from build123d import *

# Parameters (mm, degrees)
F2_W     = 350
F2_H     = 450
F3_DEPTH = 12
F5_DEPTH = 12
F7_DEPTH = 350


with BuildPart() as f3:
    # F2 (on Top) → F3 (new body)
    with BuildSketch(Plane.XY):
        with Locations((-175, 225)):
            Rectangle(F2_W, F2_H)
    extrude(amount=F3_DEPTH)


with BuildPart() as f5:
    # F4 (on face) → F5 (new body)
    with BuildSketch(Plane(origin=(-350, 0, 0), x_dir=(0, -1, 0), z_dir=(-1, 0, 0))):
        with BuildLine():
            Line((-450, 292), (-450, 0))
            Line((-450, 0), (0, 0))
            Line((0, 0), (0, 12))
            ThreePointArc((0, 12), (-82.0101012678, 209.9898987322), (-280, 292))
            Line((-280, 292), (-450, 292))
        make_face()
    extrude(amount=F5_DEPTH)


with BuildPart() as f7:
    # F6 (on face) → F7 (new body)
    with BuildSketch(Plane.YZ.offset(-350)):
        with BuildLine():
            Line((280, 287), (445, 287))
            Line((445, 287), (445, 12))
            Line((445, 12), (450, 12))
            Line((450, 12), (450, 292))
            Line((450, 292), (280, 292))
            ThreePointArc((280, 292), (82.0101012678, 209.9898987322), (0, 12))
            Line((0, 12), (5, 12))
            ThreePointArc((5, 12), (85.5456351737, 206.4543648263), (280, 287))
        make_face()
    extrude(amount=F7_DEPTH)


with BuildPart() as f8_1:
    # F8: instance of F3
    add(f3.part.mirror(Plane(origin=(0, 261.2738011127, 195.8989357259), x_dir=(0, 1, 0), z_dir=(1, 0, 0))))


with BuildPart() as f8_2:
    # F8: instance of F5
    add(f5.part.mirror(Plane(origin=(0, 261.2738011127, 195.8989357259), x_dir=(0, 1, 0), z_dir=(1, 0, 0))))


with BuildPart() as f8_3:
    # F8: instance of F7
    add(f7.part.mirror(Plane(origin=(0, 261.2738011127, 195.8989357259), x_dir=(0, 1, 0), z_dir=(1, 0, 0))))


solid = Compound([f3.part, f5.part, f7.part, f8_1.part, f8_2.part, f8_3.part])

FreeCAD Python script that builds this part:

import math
import FreeCAD as App
import Part
import Sketcher


def add_polygon(sketch, points):
    """Adds a closed chain of lines whose ends are joined by coincident constraints."""
    first, n = sketch.GeometryCount, len(points)
    for a, b in zip(points, points[1:] + points[:1]):
        sketch.addGeometry(Part.LineSegment(App.Vector(*a, 0), App.Vector(*b, 0)), False)
    for i in range(n):
        sketch.addConstraint(Sketcher.Constraint("Coincident", first + i, 2, first + (i + 1) % n, 1))

doc = App.newDocument("Part")
body = doc.addObject("PartDesign::Body", "Body")

sketch1 = body.newObject("Sketcher::SketchObject", "Sketch")
sketch1.AttachmentSupport = (doc.getObject("XY_Plane"), [""])
sketch1.MapMode = "FlatFace"
add_polygon(sketch1, [(-350, 450), (-350, 0), (0, 0), (0, 450)])
sketch1.addConstraint(Sketcher.Constraint("Vertical", 0))
sketch1.addConstraint(Sketcher.Constraint("Horizontal", 1))
sketch1.addConstraint(Sketcher.Constraint("Vertical", 2))
sketch1.addConstraint(Sketcher.Constraint("Horizontal", 3))
sketch1.addConstraint(Sketcher.Constraint("Coincident", 1, 2, -1, 1))
sketch1.addConstraint(Sketcher.Constraint("DistanceX", 1, 1, 1, 2, 350.0))
sketch1.addConstraint(Sketcher.Constraint("DistanceY", 0, 2, 0, 1, 450.0))
pad1 = body.newObject("PartDesign::Pad", "Pad")
pad1.Profile = sketch1
pad1.Length = 12
body2 = doc.addObject("PartDesign::Body", "Body001")

sketch2 = body2.newObject("Sketcher::SketchObject", "Sketch001")
sketch2.AttachmentSupport = (doc.getObject("YZ_Plane001"), [""])
sketch2.MapMode = "FlatFace"
sketch2.AttachmentOffset = App.Placement(App.Vector(0, 0, -350), App.Rotation())
sketch2.addGeometry(Part.LineSegment(App.Vector(450, 292, 0), App.Vector(450, 0, 0)), False)
sketch2.addGeometry(Part.LineSegment(App.Vector(450, 0, 0), App.Vector(0, 0, 0)), False)
sketch2.addGeometry(Part.LineSegment(App.Vector(0, 0, 0), App.Vector(0, 12, 0)), False)
sketch2.addGeometry(Part.ArcOfCircle(Part.Circle(App.Vector(280, 12, 0), App.Vector(0, 0, 1), 280), math.radians(90), math.radians(180)), False)
sketch2.addGeometry(Part.LineSegment(App.Vector(280, 292, 0), App.Vector(450, 292, 0)), False)
sketch2.addConstraint(Sketcher.Constraint("Coincident", 0, 2, 1, 1))
sketch2.addConstraint(Sketcher.Constraint("Coincident", 1, 2, 2, 1))
sketch2.addConstraint(Sketcher.Constraint("Tangent", 2, 2, 3, 2))
sketch2.addConstraint(Sketcher.Constraint("Tangent", 3, 1, 4, 1))
sketch2.addConstraint(Sketcher.Constraint("Coincident", 4, 2, 0, 1))
sketch2.addConstraint(Sketcher.Constraint("Vertical", 0))
sketch2.addConstraint(Sketcher.Constraint("Horizontal", 1))
sketch2.addConstraint(Sketcher.Constraint("Vertical", 2))
sketch2.addConstraint(Sketcher.Constraint("Horizontal", 4))
sketch2.addConstraint(Sketcher.Constraint("Coincident", 1, 2, -1, 1))
sketch2.addConstraint(Sketcher.Constraint("Radius", 3, 280.0))
sketch2.addConstraint(Sketcher.Constraint("DistanceX", 1, 2, 1, 1, 450.0))
sketch2.addConstraint(Sketcher.Constraint("DistanceY", 0, 2, 0, 1, 292.0))
pad2 = body2.newObject("PartDesign::Pad", "Pad001")
pad2.Profile = sketch2
pad2.Length = 12
pad2.Reversed = True
body3 = doc.addObject("PartDesign::Body", "Body002")

sketch3 = body3.newObject("Sketcher::SketchObject", "Sketch002")
sketch3.AttachmentSupport = (doc.getObject("YZ_Plane002"), [""])
sketch3.MapMode = "FlatFace"
sketch3.AttachmentOffset = App.Placement(App.Vector(0, 0, -350), App.Rotation())
sketch3.addGeometry(Part.LineSegment(App.Vector(280, 287, 0), App.Vector(445, 287, 0)), False)
sketch3.addGeometry(Part.LineSegment(App.Vector(445, 287, 0), App.Vector(445, 12, 0)), False)
sketch3.addGeometry(Part.LineSegment(App.Vector(445, 12, 0), App.Vector(450, 12, 0)), False)
sketch3.addGeometry(Part.LineSegment(App.Vector(450, 12, 0), App.Vector(450, 292, 0)), False)
sketch3.addGeometry(Part.LineSegment(App.Vector(450, 292, 0), App.Vector(280, 292, 0)), False)
sketch3.addGeometry(Part.ArcOfCircle(Part.Circle(App.Vector(280, 12, 0), App.Vector(0, 0, 1), 280), math.radians(90), math.radians(180)), False)
sketch3.addGeometry(Part.LineSegment(App.Vector(0, 12, 0), App.Vector(5, 12, 0)), False)
sketch3.addGeometry(Part.ArcOfCircle(Part.Circle(App.Vector(280, 12, 0), App.Vector(0, 0, 1), 275), math.radians(90), math.radians(180)), False)
sketch3.addConstraint(Sketcher.Constraint("Coincident", 0, 2, 1, 1))
sketch3.addConstraint(Sketcher.Constraint("Coincident", 1, 2, 2, 1))
sketch3.addConstraint(Sketcher.Constraint("Coincident", 2, 2, 3, 1))
sketch3.addConstraint(Sketcher.Constraint("Coincident", 3, 2, 4, 1))
sketch3.addConstraint(Sketcher.Constraint("Tangent", 4, 2, 5, 1))
sketch3.addConstraint(Sketcher.Constraint("Coincident", 5, 2, 6, 1))
sketch3.addConstraint(Sketcher.Constraint("Coincident", 6, 2, 7, 2))
sketch3.addConstraint(Sketcher.Constraint("Tangent", 7, 1, 0, 1))
sketch3.addConstraint(Sketcher.Constraint("Horizontal", 0))
sketch3.addConstraint(Sketcher.Constraint("Vertical", 1))
sketch3.addConstraint(Sketcher.Constraint("Horizontal", 2))
sketch3.addConstraint(Sketcher.Constraint("Vertical", 3))
sketch3.addConstraint(Sketcher.Constraint("Horizontal", 4))
sketch3.addConstraint(Sketcher.Constraint("Horizontal", 6))
sketch3.addConstraint(Sketcher.Constraint("Coincident", 7, 3, 5, 3))
sketch3.addConstraint(Sketcher.Constraint("PointOnObject", 5, 2, -2))
sketch3.addConstraint(Sketcher.Constraint("Horizontal", 7, 3, 1, 2))
sketch3.addConstraint(Sketcher.Constraint("Horizontal", 2, 2, 5, 2))
sketch3.addConstraint(Sketcher.Constraint("Equal", 2, 6))
sketch3.addConstraint(Sketcher.Constraint("Radius", 5, 280.0))
sketch3.addConstraint(Sketcher.Constraint("Radius", 7, 275.0))
sketch3.addConstraint(Sketcher.Constraint("DistanceX", 0, 1, 0, 2, 165.0))
sketch3.addConstraint(Sketcher.Constraint("DistanceY", -1, 1, 5, 3, 12.0))
pad3 = body3.newObject("PartDesign::Pad", "Pad002")
pad3.Profile = sketch3
pad3.Length = 350
body4 = doc.addObject("PartDesign::Body", "Body003")
doc.recompute()

mirroring = doc.addObject("Part::Mirroring", "Mirroring")
mirroring.Source = body
mirroring.Base = App.Vector(0, 261.273801, 195.898936)
mirroring.Normal = App.Vector(1, 0, 0)
body4.BaseFeature = mirroring
doc.recompute()
body5 = doc.addObject("PartDesign::Body", "Body004")
doc.recompute()

mirroring2 = doc.addObject("Part::Mirroring", "Mirroring001")
mirroring2.Source = body2
mirroring2.Base = App.Vector(0, 261.273801, 195.898936)
mirroring2.Normal = App.Vector(1, 0, 0)
body5.BaseFeature = mirroring2
doc.recompute()
body6 = doc.addObject("PartDesign::Body", "Body005")
doc.recompute()

mirroring3 = doc.addObject("Part::Mirroring", "Mirroring002")
mirroring3.Source = body3
mirroring3.Base = App.Vector(0, 261.273801, 195.898936)
mirroring3.Normal = App.Vector(1, 0, 0)
body6.BaseFeature = mirroring3
doc.recompute()
mirroring.Visibility = False
mirroring2.Visibility = False
mirroring3.Visibility = False

doc.recompute()
